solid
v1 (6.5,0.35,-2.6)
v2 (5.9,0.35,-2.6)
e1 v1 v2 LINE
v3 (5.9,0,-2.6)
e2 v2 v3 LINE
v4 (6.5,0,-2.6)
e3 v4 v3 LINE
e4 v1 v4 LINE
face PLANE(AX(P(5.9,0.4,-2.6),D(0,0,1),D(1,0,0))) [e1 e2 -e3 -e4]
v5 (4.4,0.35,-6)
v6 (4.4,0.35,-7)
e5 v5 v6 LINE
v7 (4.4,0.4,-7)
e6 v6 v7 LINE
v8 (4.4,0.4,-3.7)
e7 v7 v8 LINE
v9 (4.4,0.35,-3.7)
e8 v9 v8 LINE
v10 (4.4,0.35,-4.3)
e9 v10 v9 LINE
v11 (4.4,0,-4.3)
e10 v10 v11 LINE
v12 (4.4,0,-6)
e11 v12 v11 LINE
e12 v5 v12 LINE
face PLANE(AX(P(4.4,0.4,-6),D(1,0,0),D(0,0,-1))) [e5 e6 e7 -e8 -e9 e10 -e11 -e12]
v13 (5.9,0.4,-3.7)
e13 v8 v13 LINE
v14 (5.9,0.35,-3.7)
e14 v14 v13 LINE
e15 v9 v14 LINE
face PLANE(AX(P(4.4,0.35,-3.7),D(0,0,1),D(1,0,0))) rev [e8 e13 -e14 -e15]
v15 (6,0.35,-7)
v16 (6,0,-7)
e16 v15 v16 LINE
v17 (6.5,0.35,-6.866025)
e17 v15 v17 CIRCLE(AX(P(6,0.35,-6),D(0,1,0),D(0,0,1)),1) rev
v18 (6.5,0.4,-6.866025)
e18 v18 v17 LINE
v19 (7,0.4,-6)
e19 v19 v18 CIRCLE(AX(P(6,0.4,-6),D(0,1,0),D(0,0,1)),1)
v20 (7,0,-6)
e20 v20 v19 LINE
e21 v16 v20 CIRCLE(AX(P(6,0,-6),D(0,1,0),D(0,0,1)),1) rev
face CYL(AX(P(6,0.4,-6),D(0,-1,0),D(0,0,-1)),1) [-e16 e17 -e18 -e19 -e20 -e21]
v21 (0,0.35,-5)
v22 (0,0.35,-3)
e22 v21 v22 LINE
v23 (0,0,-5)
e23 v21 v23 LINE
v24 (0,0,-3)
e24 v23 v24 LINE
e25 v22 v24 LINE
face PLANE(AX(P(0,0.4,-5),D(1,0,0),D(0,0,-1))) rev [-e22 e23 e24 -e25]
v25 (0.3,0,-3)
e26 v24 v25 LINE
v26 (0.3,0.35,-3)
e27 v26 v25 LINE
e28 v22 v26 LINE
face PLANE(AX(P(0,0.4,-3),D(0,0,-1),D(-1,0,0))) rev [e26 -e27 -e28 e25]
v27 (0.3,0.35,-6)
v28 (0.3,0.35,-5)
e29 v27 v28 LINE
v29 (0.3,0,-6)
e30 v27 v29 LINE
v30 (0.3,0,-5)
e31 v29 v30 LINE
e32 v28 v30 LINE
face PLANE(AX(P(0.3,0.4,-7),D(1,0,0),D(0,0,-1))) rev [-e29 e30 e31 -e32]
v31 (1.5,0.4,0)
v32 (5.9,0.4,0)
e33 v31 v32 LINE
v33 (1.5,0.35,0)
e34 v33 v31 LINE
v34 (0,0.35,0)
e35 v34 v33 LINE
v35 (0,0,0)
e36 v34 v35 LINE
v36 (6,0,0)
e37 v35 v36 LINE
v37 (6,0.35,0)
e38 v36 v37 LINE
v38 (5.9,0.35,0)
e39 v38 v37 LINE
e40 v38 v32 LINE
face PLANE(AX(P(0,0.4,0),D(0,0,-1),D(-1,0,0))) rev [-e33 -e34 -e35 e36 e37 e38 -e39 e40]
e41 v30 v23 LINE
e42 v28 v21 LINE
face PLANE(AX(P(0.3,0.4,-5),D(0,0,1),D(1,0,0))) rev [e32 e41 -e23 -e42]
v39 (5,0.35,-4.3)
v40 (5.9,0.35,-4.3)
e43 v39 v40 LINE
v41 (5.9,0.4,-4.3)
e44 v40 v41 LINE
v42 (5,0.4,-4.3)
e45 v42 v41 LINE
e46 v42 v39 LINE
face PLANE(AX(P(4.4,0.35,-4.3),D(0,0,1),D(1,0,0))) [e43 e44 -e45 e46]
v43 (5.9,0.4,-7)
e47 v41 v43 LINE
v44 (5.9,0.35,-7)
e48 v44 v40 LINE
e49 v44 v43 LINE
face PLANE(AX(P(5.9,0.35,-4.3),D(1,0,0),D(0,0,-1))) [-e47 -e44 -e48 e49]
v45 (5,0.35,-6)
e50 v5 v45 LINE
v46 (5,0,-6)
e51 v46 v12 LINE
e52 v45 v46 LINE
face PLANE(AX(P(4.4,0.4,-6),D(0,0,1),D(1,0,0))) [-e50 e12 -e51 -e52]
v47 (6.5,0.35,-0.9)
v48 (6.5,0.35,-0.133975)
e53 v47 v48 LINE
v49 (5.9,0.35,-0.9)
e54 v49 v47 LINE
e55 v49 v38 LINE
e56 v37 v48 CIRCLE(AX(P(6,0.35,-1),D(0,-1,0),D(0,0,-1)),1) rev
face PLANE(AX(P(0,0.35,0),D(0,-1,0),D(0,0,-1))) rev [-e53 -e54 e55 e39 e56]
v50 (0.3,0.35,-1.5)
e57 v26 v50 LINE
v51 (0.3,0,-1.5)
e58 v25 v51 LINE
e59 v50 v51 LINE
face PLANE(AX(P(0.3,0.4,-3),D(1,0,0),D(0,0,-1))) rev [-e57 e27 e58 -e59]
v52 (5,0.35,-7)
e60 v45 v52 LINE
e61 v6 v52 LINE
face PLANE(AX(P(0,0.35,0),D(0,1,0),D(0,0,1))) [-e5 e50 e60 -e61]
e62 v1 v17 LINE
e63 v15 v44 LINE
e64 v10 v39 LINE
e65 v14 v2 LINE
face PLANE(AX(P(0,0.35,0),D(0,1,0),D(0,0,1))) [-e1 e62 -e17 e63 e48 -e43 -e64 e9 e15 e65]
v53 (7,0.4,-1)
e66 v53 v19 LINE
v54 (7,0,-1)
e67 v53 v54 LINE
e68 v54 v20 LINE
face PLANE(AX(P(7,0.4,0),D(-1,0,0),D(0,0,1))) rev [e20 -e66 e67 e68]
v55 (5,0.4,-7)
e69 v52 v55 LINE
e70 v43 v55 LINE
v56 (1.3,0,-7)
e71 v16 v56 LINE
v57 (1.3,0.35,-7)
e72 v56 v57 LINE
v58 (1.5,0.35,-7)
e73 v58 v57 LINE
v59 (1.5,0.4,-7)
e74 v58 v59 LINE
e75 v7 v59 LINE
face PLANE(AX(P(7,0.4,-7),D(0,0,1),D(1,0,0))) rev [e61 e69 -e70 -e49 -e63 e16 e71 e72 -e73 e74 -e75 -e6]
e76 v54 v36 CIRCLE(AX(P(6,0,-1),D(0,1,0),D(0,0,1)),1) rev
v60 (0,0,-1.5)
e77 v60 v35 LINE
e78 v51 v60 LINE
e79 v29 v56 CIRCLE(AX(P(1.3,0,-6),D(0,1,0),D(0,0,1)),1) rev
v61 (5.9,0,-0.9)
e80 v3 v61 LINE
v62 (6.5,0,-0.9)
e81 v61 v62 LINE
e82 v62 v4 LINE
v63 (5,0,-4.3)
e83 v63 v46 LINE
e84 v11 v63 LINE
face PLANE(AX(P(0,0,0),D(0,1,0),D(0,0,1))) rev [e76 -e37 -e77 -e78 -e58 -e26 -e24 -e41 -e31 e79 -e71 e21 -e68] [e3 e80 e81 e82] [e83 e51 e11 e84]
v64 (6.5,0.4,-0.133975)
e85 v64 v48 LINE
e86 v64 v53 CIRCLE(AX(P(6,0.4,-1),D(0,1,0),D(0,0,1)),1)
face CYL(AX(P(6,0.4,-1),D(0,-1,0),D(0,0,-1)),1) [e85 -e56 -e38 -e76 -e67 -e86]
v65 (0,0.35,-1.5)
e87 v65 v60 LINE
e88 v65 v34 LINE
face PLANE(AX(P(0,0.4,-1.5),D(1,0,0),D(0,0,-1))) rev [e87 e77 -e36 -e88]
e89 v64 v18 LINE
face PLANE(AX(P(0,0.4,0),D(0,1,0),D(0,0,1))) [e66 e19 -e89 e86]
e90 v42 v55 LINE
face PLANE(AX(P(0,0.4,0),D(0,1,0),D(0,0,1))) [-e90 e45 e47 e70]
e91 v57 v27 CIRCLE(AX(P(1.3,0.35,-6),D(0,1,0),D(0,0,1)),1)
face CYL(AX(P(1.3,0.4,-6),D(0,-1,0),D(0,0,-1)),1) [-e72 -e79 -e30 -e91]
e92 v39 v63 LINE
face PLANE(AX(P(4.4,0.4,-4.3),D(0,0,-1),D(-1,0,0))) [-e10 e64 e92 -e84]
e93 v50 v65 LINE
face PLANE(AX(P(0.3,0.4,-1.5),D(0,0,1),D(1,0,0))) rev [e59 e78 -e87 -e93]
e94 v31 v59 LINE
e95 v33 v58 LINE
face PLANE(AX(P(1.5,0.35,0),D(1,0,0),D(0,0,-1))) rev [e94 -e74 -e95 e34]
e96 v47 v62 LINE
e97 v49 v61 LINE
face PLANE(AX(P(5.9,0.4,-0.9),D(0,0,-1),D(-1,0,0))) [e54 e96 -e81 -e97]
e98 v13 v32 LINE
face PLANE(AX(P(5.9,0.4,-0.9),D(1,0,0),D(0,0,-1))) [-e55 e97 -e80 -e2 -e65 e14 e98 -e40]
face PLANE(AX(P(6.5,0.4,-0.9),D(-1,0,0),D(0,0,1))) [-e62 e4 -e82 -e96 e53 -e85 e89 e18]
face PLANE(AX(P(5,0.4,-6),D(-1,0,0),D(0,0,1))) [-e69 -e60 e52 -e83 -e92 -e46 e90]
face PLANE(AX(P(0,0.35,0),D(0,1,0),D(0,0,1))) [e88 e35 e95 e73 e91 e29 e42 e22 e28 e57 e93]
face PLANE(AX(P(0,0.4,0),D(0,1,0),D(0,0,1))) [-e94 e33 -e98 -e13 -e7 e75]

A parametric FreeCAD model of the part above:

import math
import FreeCAD as App
import Part
import Sketcher

V = App.Vector


def edges_at(feature, points):
    """Names of the edges that pass closest to the given points."""
    edges = feature.Shape.Edges
    near = lambda p: min(range(len(edges)), key=lambda i: edges[i].distToShape(Part.Vertex(*p))[0])
    return sorted({f"Edge{near(p) + 1}" for p in points})

doc = App.newDocument("Part")
body = doc.addObject("PartDesign::Body", "Body")

# Sketch on XZ plane
sketch1 = body.newObject("Sketcher::SketchObject", "Sketch")
sketch1.AttachmentSupport = (doc.getObject("XZ_Plane"), [""])
sketch1.MapMode = "FlatFace"
sketch1.addGeometry([
    Part.LineSegment(V(0, 0, 0), V(7, 0, 0)),  # 0
    Part.LineSegment(V(7, 0, 0), V(7, -7, 0)),  # 1
    Part.LineSegment(V(7, -7, 0), V(0.3, -7, 0)),  # 2
    Part.LineSegment(V(0.3, -7, 0), V(0.3, -5, 0)),  # 3
    Part.LineSegment(V(0.3, -5, 0), V(0, -5, 0)),  # 4
    Part.LineSegment(V(0, -5, 0), V(0, -3, 0)),  # 5
    Part.LineSegment(V(0, -3, 0), V(0.3, -3, 0)),  # 6
    Part.LineSegment(V(0.3, -3, 0), V(0.3, -1.5, 0)),  # 7
    Part.LineSegment(V(0.3, -1.5, 0), V(0, -1.5, 0)),  # 8
    Part.LineSegment(V(0, -1.5, 0), V(0, 0, 0)),  # 9
    Part.LineSegment(V(6.5, -0.9, 0), V(5.9, -0.9, 0)),  # 10
    Part.LineSegment(V(5.9, -0.9, 0), V(5.9, -2.6, 0)),  # 11
    Part.LineSegment(V(5.9, -2.6, 0), V(6.5, -2.6, 0)),  # 12
    Part.LineSegment(V(6.5, -2.6, 0), V(6.5, -0.9, 0)),  # 13
    Part.LineSegment(V(5, -4.3, 0), V(4.4, -4.3, 0)),  # 14
    Part.LineSegment(V(4.4, -4.3, 0), V(4.4, -6, 0)),  # 15
    Part.LineSegment(V(4.4, -6, 0), V(5, -6, 0)),  # 16
    Part.LineSegment(V(5, -6, 0), V(5, -4.3, 0)),  # 17
], False)
sketch1.addConstraint([
    Sketcher.Constraint("Coincident", 0, 2, 1, 1),
    Sketcher.Constraint("Coincident", 1, 2, 2, 1),
    Sketcher.Constraint("Coincident", 2, 2, 3, 1),
    Sketcher.Constraint("Coincident", 3, 2, 4, 1),
    Sketcher.Constraint("Coincident", 4, 2, 5, 1),
    Sketcher.Constraint("Coincident", 5, 2, 6, 1),
    Sketcher.Constraint("Coincident", 6, 2, 7, 1),
    Sketcher.Constraint("Coincident", 7, 2, 8, 1),
    Sketcher.Constraint("Coincident", 8, 2, 9, 1),
    Sketcher.Constraint("Coincident", 9, 2, 0, 1),
    Sketcher.Constraint("Coincident", 10, 2, 11, 1),
    Sketcher.Constraint("Coincident", 11, 2, 12, 1),
    Sketcher.Constraint("Coincident", 12, 2, 13, 1),
    Sketcher.Constraint("Coincident", 13, 2, 10, 1),
    Sketcher.Constraint("Coincident", 14, 2, 15, 1),
    Sketcher.Constraint("Coincident", 15, 2, 16, 1),
    Sketcher.Constraint("Coincident", 16, 2, 17, 1),
    Sketcher.Constraint("Coincident", 17, 2, 14, 1),
    Sketcher.Constraint("Horizontal", 0),
    Sketcher.Constraint("Vertical", 1),
    Sketcher.Constraint("Horizontal", 2),
    Sketcher.Constraint("Vertical", 3),
    Sketcher.Constraint("Horizontal", 4),
    Sketcher.Constraint("Vertical", 5),
    Sketcher.Constraint("Horizontal", 6),
    Sketcher.Constraint("Vertical", 7),
    Sketcher.Constraint("Horizontal", 8),
    Sketcher.Constraint("Vertical", 9),
    Sketcher.Constraint("Horizontal", 10),
    Sketcher.Constraint("Vertical", 11),
    Sketcher.Constraint("Horizontal", 12),
    Sketcher.Constraint("Vertical", 13),
    Sketcher.Constraint("Horizontal", 14),
    Sketcher.Constraint("Vertical", 15),
    Sketcher.Constraint("Horizontal", 16),
    Sketcher.Constraint("Vertical", 17),
    Sketcher.Constraint("Coincident", 9, 2, -1, 1),
    Sketcher.Constraint("PointOnObject", 4, 2, -2),
    Sketcher.Constraint("Vertical", 3, 2, 6, 2),
    Sketcher.Constraint("Equal", 12, 14),
    Sketcher.Constraint("Equal", 0, 1),
    Sketcher.Constraint("Equal", 3, 5),
    Sketcher.Constraint("Equal", 7, 9),
    Sketcher.Constraint("Equal", 13, 15),
    Sketcher.Constraint("DistanceX", 0, 1, 0, 2, 7.0),
    Sketcher.Constraint("DistanceY", 3, 1, 3, 2, 2.0),
    Sketcher.Constraint("DistanceX", 2, 2, 2, 1, 6.7),
    Sketcher.Constraint("DistanceX", 10, 2, 10, 1, 0.6),
    Sketcher.Constraint("DistanceY", 11, 2, 11, 1, 1.7),
    Sketcher.Constraint("DistanceY", 15, 2, -1, 1, 6.0),
    Sketcher.Constraint("DistanceX", -1, 1, 16, 2, 5.0),
    Sketcher.Constraint("DistanceX", -1, 1, 10, 2, 5.9),
    Sketcher.Constraint("DistanceY", 10, 2, -1, 1, 0.9),
])
pad1 = body.newObject("PartDesign::Pad", "Pad")
pad1.Profile = sketch1
pad1.Length = 0.4
pad1.Reversed = True
doc.recompute()

fillet = body.newObject("PartDesign::Fillet", "Fillet")
fillet.Base = (pad1, edges_at(pad1, [(0.3, 0.2, -7), (7, 0.2, -7), (7, 0.2, 0)]))
fillet.Radius = 1

# Sketch on XZ plane
sketch2 = body.newObject("Sketcher::SketchObject", "Sketch001")
sketch2.AttachmentSupport = (doc.getObject("XZ_Plane"), [""])
sketch2.MapMode = "FlatFace"
sketch2.AttachmentOffset = App.Placement(V(0, 0, -0.4), App.Rotation())
sketch2.addGeometry([
    Part.LineSegment(V(1.5, 0, 0), V(1.5, -7, 0)),  # 0
    Part.LineSegment(V(1.5, -7, 0), V(1.3, -7, 0)),  # 1
    Part.ArcOfCircle(Part.Circle(V(1.3, -6, 0), V(0, 0, 1), 1), math.radians(-180), math.radians(-90)),  # 2
    Part.LineSegment(V(0.3, -6, 0), V(0.3, -5, 0)),  # 3
    Part.LineSegment(V(0.3, -5, 0), V(0, -5, 0)),  # 4
    Part.LineSegment(V(0, -5, 0), V(0, -3, 0)),  # 5
    Part.LineSegment(V(0, -3, 0), V(0.3, -3, 0)),  # 6
    Part.LineSegment(V(0.3, -3, 0), V(0.3, -1.5, 0)),  # 7
    Part.LineSegment(V(0.3, -1.5, 0), V(0, -1.5, 0)),  # 8
    Part.LineSegment(V(0, -1.5, 0), V(0, 0, 0)),  # 9
    Part.LineSegment(V(0, 0, 0), V(1.5, 0, 0)),  # 10
    Part.LineSegment(V(5.9, -0.9, 0), V(5.9, 0, 0)),  # 11
    Part.LineSegment(V(5.9, 0, 0), V(6.5, 0, 0)),  # 12
    Part.LineSegment(V(6.5, 0, 0), V(6.5, -0.9, 0)),  # 13
    Part.LineSegment(V(6.5, -0.9, 0), V(5.9, -0.9, 0)),  # 14
    Part.LineSegment(V(5.9, -4.3, 0), V(4.4, -4.3, 0)),  # 15
    Part.LineSegment(V(4.4, -4.3, 0), V(4.4, -3.7, 0)),  # 16
    Part.LineSegment(V(4.4, -3.7, 0), V(5.9, -3.7, 0)),  # 17
    Part.LineSegment(V(5.9, -3.7, 0), V(5.9, -2.6, 0)),  # 18
    Part.LineSegment(V(5.9, -2.6, 0), V(6.5, -2.6, 0)),  # 19
    Part.LineSegment(V(6.5, -2.6, 0), V(6.5, -7.27, 0)),  # 20
    Part.LineSegment(V(6.5, -7.27, 0), V(5.9, -7.27, 0)),  # 21
    Part.LineSegment(V(5.9, -7.27, 0), V(5.9, -4.3, 0)),  # 22
    Part.LineSegment(V(4.4, -7, 0), V(4.4, -6, 0)),  # 23
    Part.LineSegment(V(4.4, -6, 0), V(5, -6, 0)),  # 24
    Part.LineSegment(V(5, -6, 0), V(5, -7, 0)),  # 25
    Part.LineSegment(V(5, -7, 0), V(4.4, -7, 0)),  # 26
], False)
sketch2.addConstraint([
    Sketcher.Constraint("Coincident", 0, 2, 1, 1),
    Sketcher.Constraint("Tangent", 1, 2, 2, 2),
    Sketcher.Constraint("Tangent", 2, 1, 3, 1),
    Sketcher.Constraint("Coincident", 3, 2, 4, 1),
    Sketcher.Constraint("Coincident", 4, 2, 5, 1),
    Sketcher.Constraint("Coincident", 5, 2, 6, 1),
    Sketcher.Constraint("Coincident", 6, 2, 7, 1),
    Sketcher.Constraint("Coincident", 7, 2, 8, 1),
    Sketcher.Constraint("Coincident", 8, 2, 9, 1),
    Sketcher.Constraint("Coincident", 9, 2, 10, 1),
    Sketcher.Constraint("Coincident", 10, 2, 0, 1),
    Sketcher.Constraint("Coincident", 11, 2, 12, 1),
    Sketcher.Constraint("Coincident", 12, 2, 13, 1),
    Sketcher.Constraint("Coincident", 13, 2, 14, 1),
    Sketcher.Constraint("Coincident", 14, 2, 11, 1),
    Sketcher.Constraint("Coincident", 15, 2, 16, 1),
    Sketcher.Constraint("Coincident", 16, 2, 17, 1),
    Sketcher.Constraint("Coincident", 17, 2, 18, 1),
    Sketcher.Constraint("Coincident", 18, 2, 19, 1),
    Sketcher.Constraint("Coincident", 19, 2, 20, 1),
    Sketcher.Constraint("Coincident", 20, 2, 21, 1),
    Sketcher.Constraint("Coincident", 21, 2, 22, 1),
    Sketcher.Constraint("Coincident", 22, 2, 15, 1),
    Sketcher.Constraint("Coincident", 23, 2, 24, 1),
    Sketcher.Constraint("Coincident", 24, 2, 25, 1),
    Sketcher.Constraint("Coincident", 25, 2, 26, 1),
    Sketcher.Constraint("Coincident", 26, 2, 23, 1),
    Sketcher.Constraint("Vertical", 0),
    Sketcher.Constraint("Horizontal", 1),
    Sketcher.Constraint("Vertical", 3),
    Sketcher.Constraint("Horizontal", 4),
    Sketcher.Constraint("Vertical", 5),
    Sketcher.Constraint("Horizontal", 6),
    Sketcher.Constraint("Vertical", 7),
    Sketcher.Constraint("Horizontal", 8),
    Sketcher.Constraint("Vertical", 9),
    Sketcher.Constraint("Horizontal", 10),
    Sketcher.Constraint("Vertical", 11),
    Sketcher.Constraint("Horizontal", 12),
    Sketcher.Constraint("Vertical", 13),
    Sketcher.Constraint("Horizontal", 14),
    Sketcher.Constraint("Horizontal", 15),
    Sketcher.Constraint("Vertical", 16),
    Sketcher.Constraint("Horizontal", 17),
    Sketcher.Constraint("Vertical", 18),
    Sketcher.Constraint("Horizontal", 19),
    Sketcher.Constraint("Vertical", 20),
    Sketcher.Constraint("Horizontal", 21),
    Sketcher.Constraint("Vertical", 22),
    Sketcher.Constraint("Vertical", 23),
    Sketcher.Constraint("Horizontal", 24),
    Sketcher.Constraint("Vertical", 25),
    Sketcher.Constraint("Horizontal", 26),
    Sketcher.Constraint("Coincident", 9, 2, -1, 1),
    Sketcher.Constraint("PointOnObject", 4, 2, -2),
    Sketcher.Constraint("PointOnObject", 11, 2, -1),
    Sketcher.Constraint("Horizontal", 2, 1, 23, 2),
    Sketcher.Constraint("Horizontal", 1, 2, 25, 2),
    Sketcher.Constraint("Vertical", 3, 2, 6, 2),
    Sketcher.Constraint("Vertical", 14, 2, 17, 2),
    Sketcher.Constraint("Vertical", 13, 2, 19, 2),
    Sketcher.Constraint("Vertical", 18, 2, 21, 2),
    Sketcher.Constraint("Vertical", 16, 2, 23, 2),
    Sketcher.Constraint("Equal", 10, 15),
    Sketcher.Constraint("Equal", 21, 24),
    Sketcher.Constraint("Equal", 17, 7),
    Sketcher.Constraint("Equal", 7, 9),
    Sketcher.Constraint("Equal", 26, 16),
    Sketcher.Constraint("Equal", 3, 23),
    Sketcher.Constraint("Radius", 2, 1.0),
    Sketcher.Constraint("DistanceY", 0, 2, 0, 1, 7.0),
    Sketcher.Constraint("DistanceY", 5, 1, 5, 2, 2.0),
    Sketcher.Constraint("DistanceX", 1, 2, 1, 1, 0.2),
    Sketcher.Constraint("DistanceX", 12, 1, 12, 2, 0.6),
    Sketcher.Constraint("DistanceY", 11, 1, 11, 2, 0.9),
    Sketcher.Constraint("DistanceY", 18, 1, 18, 2, 1.1),
    Sketcher.Constraint("DistanceX", -1, 1, 24, 2, 5.0),
    Sketcher.Constraint("DistanceY", 15, 2, -1, 1, 4.3),
    Sketcher.Constraint("DistanceY", 20, 2, 20, 1, 4.668877),
])
pocket1 = body.newObject("PartDesign::Pocket", "Pocket")
pocket1.Profile = sketch2
pocket1.Length = 0.05
pocket1.Reversed = True

doc.recompute()
